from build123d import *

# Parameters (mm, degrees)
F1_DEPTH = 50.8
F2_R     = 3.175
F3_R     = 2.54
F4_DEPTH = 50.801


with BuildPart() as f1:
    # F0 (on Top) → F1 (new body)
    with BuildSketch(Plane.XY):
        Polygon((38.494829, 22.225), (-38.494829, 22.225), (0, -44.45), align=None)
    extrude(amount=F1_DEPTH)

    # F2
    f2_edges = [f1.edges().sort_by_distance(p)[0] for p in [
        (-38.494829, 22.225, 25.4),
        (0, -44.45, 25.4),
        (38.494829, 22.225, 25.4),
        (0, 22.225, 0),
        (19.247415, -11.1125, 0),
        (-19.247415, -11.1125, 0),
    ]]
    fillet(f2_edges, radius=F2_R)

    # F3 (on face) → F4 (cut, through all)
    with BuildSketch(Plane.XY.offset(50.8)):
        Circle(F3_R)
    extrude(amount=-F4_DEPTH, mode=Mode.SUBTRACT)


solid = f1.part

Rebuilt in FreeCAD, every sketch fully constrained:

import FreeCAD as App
import Part
import Sketcher

V = App.Vector
Q = App.Units.Quantity


def edges_at(feature, points):
    """Names of the edges that pass closest to the given points."""
    edges = feature.Shape.Edges
    near = lambda p: min(range(len(edges)), key=lambda i: edges[i].distToShape(Part.Vertex(*p))[0])
    return sorted({f"Edge{near(p) + 1}" for p in points})

doc = App.newDocument("Part")
body = doc.addObject("PartDesign::Body", "Body")

# Sketch on XY plane
sketch1 = body.newObject("Sketcher::SketchObject", "Sketch")
sketch1.AttachmentSupport = (doc.getObject("XY_Plane"), [""])
sketch1.MapMode = "FlatFace"
sketch1.addGeometry(Part.LineSegment(V(38, 22, 0), V(-38, 22, 0)), False)
sketch1.addGeometry(Part.LineSegment(V(-38, 22, 0), V(0, -44, 0)), False)
sketch1.addGeometry(Part.LineSegment(V(0, -44, 0), V(38, 22, 0)), False)
sketch1.addConstraint(Sketcher.Constraint("Coincident", 0, 2, 1, 1))
sketch1.addConstraint(Sketcher.Constraint("Coincident", 1, 2, 2, 1))
sketch1.addConstraint(Sketcher.Constraint("Coincident", 2, 2, 0, 1))
sketch1.addConstraint(Sketcher.Constraint("Horizontal", 0))
sketch1.addConstraint(Sketcher.Constraint("PointOnObject", 1, 2, -2))
sketch1.addConstraint(Sketcher.Constraint("Equal", 1, 2))
sketch1.addConstraint(Sketcher.Constraint("Angle", 1, Q("-60 deg")))
sketch1.addConstraint(Sketcher.Constraint("DistanceY", 1, 2, -1, 1, Q("1.75 in")))
sketch1.addConstraint(Sketcher.Constraint("DistanceY", -1, 1, 0, 2, Q("0.875 in")))
pad1 = body.newObject("PartDesign::Pad", "Pad")
pad1.Profile = sketch1
pad1.Length = Q("2 in")
doc.recompute()

fillet = body.newObject("PartDesign::Fillet", "Fillet")
fillet.Base = (pad1, edges_at(pad1, [
    (-38.495, 22.225, 25.4),
    (0, -44.45, 25.4),
    (38.495, 22.225, 25.4),
    (0, 22.225, 0),
    (19.247, -11.113, 0),
    (-19.247, -11.113, 0),
]))
fillet.Radius = Q("0.125 in")

# Sketch on XY plane
sketch2 = body.newObject("Sketcher::SketchObject", "Sketch001")
sketch2.AttachmentSupport = (doc.getObject("XY_Plane"), [""])
sketch2.MapMode = "FlatFace"
sketch2.AttachmentOffset = App.Placement(V(0, 0, 2 * 25.4), App.Rotation())
sketch2.addGeometry(Part.Circle(V(0, 0, 0), V(0, 0, 1), 2.5), False)
sketch2.addConstraint(Sketcher.Constraint("Coincident", 0, 3, -1, 1))
sketch2.addConstraint(Sketcher.Constraint("Diameter", 0, Q("0.2 in")))
pocket1 = body.newObject("PartDesign::Pocket", "Pocket")
pocket1.Profile = sketch2
pocket1.Type = "ThroughAll"

doc.recompute()
